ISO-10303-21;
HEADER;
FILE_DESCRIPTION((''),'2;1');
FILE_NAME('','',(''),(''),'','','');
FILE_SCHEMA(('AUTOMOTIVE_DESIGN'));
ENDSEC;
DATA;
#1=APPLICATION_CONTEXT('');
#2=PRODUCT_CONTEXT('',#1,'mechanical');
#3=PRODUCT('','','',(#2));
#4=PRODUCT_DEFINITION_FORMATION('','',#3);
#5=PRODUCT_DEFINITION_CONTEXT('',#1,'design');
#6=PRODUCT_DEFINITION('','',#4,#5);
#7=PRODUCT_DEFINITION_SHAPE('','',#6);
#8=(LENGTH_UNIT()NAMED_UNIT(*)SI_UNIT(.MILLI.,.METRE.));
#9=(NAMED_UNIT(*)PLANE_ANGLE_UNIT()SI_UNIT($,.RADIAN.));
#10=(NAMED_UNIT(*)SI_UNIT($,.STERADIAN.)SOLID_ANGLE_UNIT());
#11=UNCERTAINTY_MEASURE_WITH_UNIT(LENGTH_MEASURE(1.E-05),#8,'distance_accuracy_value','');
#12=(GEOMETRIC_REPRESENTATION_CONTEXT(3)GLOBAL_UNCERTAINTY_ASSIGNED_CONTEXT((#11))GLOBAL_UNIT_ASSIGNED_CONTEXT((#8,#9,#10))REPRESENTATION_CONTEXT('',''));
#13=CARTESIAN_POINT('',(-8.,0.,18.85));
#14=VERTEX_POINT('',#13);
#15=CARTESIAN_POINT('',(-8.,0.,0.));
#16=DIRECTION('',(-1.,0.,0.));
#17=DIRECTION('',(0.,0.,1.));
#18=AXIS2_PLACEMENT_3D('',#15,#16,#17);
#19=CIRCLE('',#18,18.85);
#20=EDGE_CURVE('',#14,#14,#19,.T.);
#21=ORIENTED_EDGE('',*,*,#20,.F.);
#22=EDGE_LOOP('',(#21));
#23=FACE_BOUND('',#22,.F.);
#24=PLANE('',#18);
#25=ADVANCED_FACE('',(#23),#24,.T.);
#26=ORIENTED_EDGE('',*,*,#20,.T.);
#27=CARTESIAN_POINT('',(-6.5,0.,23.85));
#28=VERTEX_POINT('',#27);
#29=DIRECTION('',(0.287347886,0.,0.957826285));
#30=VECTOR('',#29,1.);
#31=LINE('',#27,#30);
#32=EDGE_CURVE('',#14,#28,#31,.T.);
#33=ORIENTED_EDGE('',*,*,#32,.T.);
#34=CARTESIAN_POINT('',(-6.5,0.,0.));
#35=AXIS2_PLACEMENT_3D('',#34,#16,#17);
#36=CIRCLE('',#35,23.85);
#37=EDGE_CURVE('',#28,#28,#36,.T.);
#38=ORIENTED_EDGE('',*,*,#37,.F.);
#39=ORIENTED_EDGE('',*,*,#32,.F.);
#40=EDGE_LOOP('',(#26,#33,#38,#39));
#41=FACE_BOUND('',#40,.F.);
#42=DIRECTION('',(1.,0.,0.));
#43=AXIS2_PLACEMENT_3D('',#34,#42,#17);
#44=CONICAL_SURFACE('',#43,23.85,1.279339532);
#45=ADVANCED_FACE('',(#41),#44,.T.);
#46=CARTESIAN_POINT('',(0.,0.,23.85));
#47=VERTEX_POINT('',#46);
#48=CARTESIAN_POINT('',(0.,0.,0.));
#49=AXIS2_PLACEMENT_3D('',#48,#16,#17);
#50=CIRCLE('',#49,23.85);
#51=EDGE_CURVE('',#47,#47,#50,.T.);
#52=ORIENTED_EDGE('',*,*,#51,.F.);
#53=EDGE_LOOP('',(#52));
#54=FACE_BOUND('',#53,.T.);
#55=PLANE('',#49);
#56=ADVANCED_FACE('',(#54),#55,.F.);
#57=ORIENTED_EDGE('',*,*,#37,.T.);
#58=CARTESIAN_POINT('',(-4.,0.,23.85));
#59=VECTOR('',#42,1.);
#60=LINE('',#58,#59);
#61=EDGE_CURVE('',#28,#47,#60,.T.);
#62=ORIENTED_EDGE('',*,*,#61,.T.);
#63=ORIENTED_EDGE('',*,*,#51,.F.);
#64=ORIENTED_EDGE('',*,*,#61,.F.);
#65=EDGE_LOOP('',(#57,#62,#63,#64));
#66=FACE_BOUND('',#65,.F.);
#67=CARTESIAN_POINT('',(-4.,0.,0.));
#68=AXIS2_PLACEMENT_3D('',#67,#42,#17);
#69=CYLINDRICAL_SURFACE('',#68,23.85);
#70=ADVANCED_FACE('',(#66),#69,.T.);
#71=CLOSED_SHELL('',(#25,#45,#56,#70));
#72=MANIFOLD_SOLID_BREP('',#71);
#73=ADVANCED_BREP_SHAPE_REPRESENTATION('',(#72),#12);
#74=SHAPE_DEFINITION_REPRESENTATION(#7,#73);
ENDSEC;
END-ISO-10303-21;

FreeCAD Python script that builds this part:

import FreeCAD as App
import Part
import Sketcher
from FreeCAD import Vector


def edges_at(feature, points):
    """Names of the edges that pass closest to the given points."""
    edges = feature.Shape.Edges
    near = lambda p: min(range(len(edges)), key=lambda i: edges[i].distToShape(Part.Vertex(*p))[0])
    return sorted({f"Edge{near(p) + 1}" for p in points})


def add_polygon(sketch, points):
    """Adds a closed chain of lines whose ends are joined by coincident constraints."""
    first, n = sketch.GeometryCount, len(points)
    for a, b in zip(points, points[1:] + points[:1]):
        sketch.addGeometry(Part.LineSegment(App.Vector(*a, 0), App.Vector(*b, 0)), False)
    for i in range(n):
        sketch.addConstraint(Sketcher.Constraint("Coincident", first + i, 2, first + (i + 1) % n, 1))

doc = App.newDocument("Part")
body = doc.addObject("PartDesign::Body", "Body")

# Sketch on XZ plane
sketch1 = body.newObject("Sketcher::SketchObject", "Sketch")
sketch1.AttachmentSupport = (doc.getObject("XZ_Plane"), [""])
sketch1.MapMode = "FlatFace"
add_polygon(sketch1, [(-8, 24), (-8, 0), (0, 0), (0, 24)])  # lines 0-3
sketch1.addConstraint(Sketcher.Constraint("Vertical", 0))
sketch1.addConstraint(Sketcher.Constraint("Horizontal", 1))
sketch1.addConstraint(Sketcher.Constraint("Vertical", 2))
sketch1.addConstraint(Sketcher.Constraint("Horizontal", 3))
sketch1.addConstraint(Sketcher.Constraint("Coincident", 1, 2, -1, 1))
sketch1.addConstraint(Sketcher.Constraint("DistanceX", 1, 1, 1, 2, 8.0))
sketch1.addConstraint(Sketcher.Constraint("DistanceY", 0, 2, 0, 1, 23.85))
revolution = body.newObject("PartDesign::Revolution", "Revolution")
revolution.Profile = sketch1
revolution.ReferenceAxis = (sketch1, ["H_Axis"])
revolution.Angle = 360
doc.recompute()

chamfer = body.newObject("PartDesign::Chamfer", "Chamfer")
chamfer.Base = (revolution, edges_at(revolution, [(-8, 0, -23.85)]))
chamfer.ChamferType = "Two distances"
chamfer.Size = 5
chamfer.Size2 = 1.5

doc.recompute()
